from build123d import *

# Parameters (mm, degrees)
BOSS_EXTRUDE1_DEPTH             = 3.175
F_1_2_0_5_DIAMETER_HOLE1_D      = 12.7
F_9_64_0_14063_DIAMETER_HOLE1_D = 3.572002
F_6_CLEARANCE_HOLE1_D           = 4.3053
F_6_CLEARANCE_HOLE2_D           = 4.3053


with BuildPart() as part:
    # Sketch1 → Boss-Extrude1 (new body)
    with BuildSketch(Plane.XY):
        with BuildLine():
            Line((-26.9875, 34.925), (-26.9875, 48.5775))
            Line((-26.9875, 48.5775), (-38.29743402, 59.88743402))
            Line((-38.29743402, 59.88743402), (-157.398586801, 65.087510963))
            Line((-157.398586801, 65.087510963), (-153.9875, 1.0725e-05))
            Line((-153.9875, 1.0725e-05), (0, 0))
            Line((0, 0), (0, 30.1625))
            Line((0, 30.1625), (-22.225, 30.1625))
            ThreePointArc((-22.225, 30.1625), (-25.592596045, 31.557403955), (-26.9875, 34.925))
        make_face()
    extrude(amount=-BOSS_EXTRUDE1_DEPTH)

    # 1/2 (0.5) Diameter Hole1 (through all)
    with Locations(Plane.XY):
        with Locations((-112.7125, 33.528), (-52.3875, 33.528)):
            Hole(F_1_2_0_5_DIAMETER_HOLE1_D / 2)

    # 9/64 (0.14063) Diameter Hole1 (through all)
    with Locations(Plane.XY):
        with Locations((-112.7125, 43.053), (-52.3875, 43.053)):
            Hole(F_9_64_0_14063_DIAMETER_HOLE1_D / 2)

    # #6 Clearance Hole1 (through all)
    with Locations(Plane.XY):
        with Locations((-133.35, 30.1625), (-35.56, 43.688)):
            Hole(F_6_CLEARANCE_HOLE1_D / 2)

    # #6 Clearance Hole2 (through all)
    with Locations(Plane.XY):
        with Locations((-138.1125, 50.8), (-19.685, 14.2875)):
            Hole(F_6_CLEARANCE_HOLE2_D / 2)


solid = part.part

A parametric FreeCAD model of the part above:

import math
import FreeCAD as App
import Part
import Sketcher
from FreeCAD import Vector
Q = App.Units.Quantity

doc = App.newDocument("Part")
body = doc.addObject("PartDesign::Body", "Body")

# Sketch on XY plane
sketch1 = body.newObject("Sketcher::SketchObject", "Sketch")
sketch1.AttachmentSupport = (doc.getObject("XY_Plane"), [""])
sketch1.MapMode = "FlatFace"
sketch1.addGeometry(Part.LineSegment(Vector(-26.9875, 34.925, 0), Vector(-26.9875, 48.5775, 0)), False)
sketch1.addGeometry(Part.LineSegment(Vector(-26.9875, 48.5775, 0), Vector(-38.297434, 59.887434, 0)), False)
sketch1.addGeometry(Part.LineSegment(Vector(-38.297434, 59.887434, 0), Vector(-157.398587, 65.087511, 0)), False)
sketch1.addGeometry(Part.LineSegment(Vector(-157.398587, 65.087511, 0), Vector(-153.9875, 0.000011, 0)), False)
sketch1.addGeometry(Part.LineSegment(Vector(-153.9875, 0.000011, 0), Vector(0, 0, 0)), False)
sketch1.addGeometry(Part.LineSegment(Vector(0, 0, 0), Vector(0, 30.1625, 0)), False)
sketch1.addGeometry(Part.LineSegment(Vector(0, 30.1625, 0), Vector(-22.225, 30.1625, 0)), False)
sketch1.addGeometry(Part.ArcOfCircle(Part.Circle(Vector(-22.225, 34.925, 0), Vector(0, 0, 1), 4.7625), math.radians(-180), math.radians(-90)), False)
sketch1.addConstraint(Sketcher.Constraint("Coincident", 0, 2, 1, 1))
sketch1.addConstraint(Sketcher.Constraint("Coincident", 1, 2, 2, 1))
sketch1.addConstraint(Sketcher.Constraint("Coincident", 2, 2, 3, 1))
sketch1.addConstraint(Sketcher.Constraint("Coincident", 3, 2, 4, 1))
sketch1.addConstraint(Sketcher.Constraint("Coincident", 4, 2, 5, 1))
sketch1.addConstraint(Sketcher.Constraint("Coincident", 5, 2, 6, 1))
sketch1.addConstraint(Sketcher.Constraint("Tangent", 6, 2, 7, 2))
sketch1.addConstraint(Sketcher.Constraint("Tangent", 7, 1, 0, 1))
sketch1.addConstraint(Sketcher.Constraint("Vertical", 0))
sketch1.addConstraint(Sketcher.Constraint("Vertical", 5))
sketch1.addConstraint(Sketcher.Constraint("Horizontal", 6))
sketch1.addConstraint(Sketcher.Constraint("Coincident", 4, 2, -1, 1))
sketch1.addConstraint(Sketcher.Constraint("Angle", 1, Q("135 deg")))
sketch1.addConstraint(Sketcher.Constraint("Angle", 3, Q("-87.000004 deg")))
sketch1.addConstraint(Sketcher.Constraint("Angle", 4, Q("-0.000004 deg")))
sketch1.addConstraint(Sketcher.Constraint("Radius", 7, Q("0.1875 in")))
sketch1.addConstraint(Sketcher.Constraint("DistanceX", 3, 2, 0, 2, Q("5 in")))
sketch1.addConstraint(Sketcher.Constraint("Angle", 2, Q("177.499996 deg")))
sketch1.addConstraint(Sketcher.Constraint("DistanceX", 6, 2, 6, 1, Q("0.875 in")))
sketch1.addConstraint(Sketcher.Constraint("DistanceY", 5, 1, 5, 2, Q("1.1875 in")))
sketch1.addConstraint(Sketcher.Constraint("DistanceY", 0, 1, 0, 2, Q("0.5375 in")))
sketch1.addConstraint(Sketcher.Constraint("DistanceY", 3, 2, 2, 2, Q("2.5625 in")))
pad1 = body.newObject("PartDesign::Pad", "Pad")
pad1.Profile = sketch1
pad1.Length = Q("0.125 in")
pad1.Reversed = True

# Sketch on XY plane
sketch2 = body.newObject("Sketcher::SketchObject", "Sketch001")
sketch2.AttachmentSupport = (doc.getObject("XY_Plane"), [""])
sketch2.MapMode = "FlatFace"
sketch2.addGeometry(Part.Circle(Vector(-112.7125, 33.528, 0), Vector(0, 0, 1), 6.35), False)
sketch2.addGeometry(Part.Circle(Vector(-52.3875, 33.528, 0), Vector(0, 0, 1), 6.35), False)
sketch2.addConstraint(Sketcher.Constraint("Equal", 0, 1))
sketch2.addConstraint(Sketcher.Constraint("Horizontal", 0, 3, 1, 3))
sketch2.addConstraint(Sketcher.Constraint("Diameter", 0, Q("0.5 in")))
sketch2.addConstraint(Sketcher.Constraint("DistanceY", -1, 1, 0, 3, Q("1.32 in")))
sketch2.addConstraint(Sketcher.Constraint("DistanceX", 0, 3, -1, 1, Q("4.4375 in")))
sketch2.addConstraint(Sketcher.Constraint("DistanceX", 1, 3, -1, 1, Q("2.0625 in")))
doc.recompute()
hole = body.newObject("PartDesign::Hole", "Hole")
hole.Profile = sketch2
hole.ThreadType = "None"
hole.Diameter = Q("0.5 in")
hole.DepthType = "ThroughAll"

# Sketch on XY plane
sketch3 = body.newObject("Sketcher::SketchObject", "Sketch002")
sketch3.AttachmentSupport = (doc.getObject("XY_Plane"), [""])
sketch3.MapMode = "FlatFace"
sketch3.addGeometry(Part.Circle(Vector(-112.7125, 43.053, 0), Vector(0, 0, 1), 1.786001), False)
sketch3.addGeometry(Part.Circle(Vector(-52.3875, 43.053, 0), Vector(0, 0, 1), 1.786001), False)
sketch3.addConstraint(Sketcher.Constraint("Equal", 0, 1))
sketch3.addConstraint(Sketcher.Constraint("Horizontal", 0, 3, 1, 3))
sketch3.addConstraint(Sketcher.Constraint("Diameter", 0, Q("3.572002 mm")))
sketch3.addConstraint(Sketcher.Constraint("DistanceX", 0, 3, -1, 1, Q("4.4375 in")))
sketch3.addConstraint(Sketcher.Constraint("DistanceY", -1, 1, 0, 3, Q("1.695 in")))
sketch3.addConstraint(Sketcher.Constraint("DistanceX", 1, 3, -1, 1, Q("2.0625 in")))
doc.recompute()
hole2 = body.newObject("PartDesign::Hole", "Hole001")
hole2.Profile = sketch3
hole2.ThreadType = "None"
hole2.Diameter = 3.572002
hole2.DepthType = "ThroughAll"

# Sketch on XY plane
sketch4 = body.newObject("Sketcher::SketchObject", "Sketch003")
sketch4.AttachmentSupport = (doc.getObject("XY_Plane"), [""])
sketch4.MapMode = "FlatFace"
sketch4.addGeometry(Part.Circle(Vector(-133.35, 30.1625, 0), Vector(0, 0, 1), 2.15265), False)
sketch4.addGeometry(Part.Circle(Vector(-35.56, 43.688, 0), Vector(0, 0, 1), 2.15265), False)
sketch4.addConstraint(Sketcher.Constraint("Equal", 0, 1))
sketch4.addConstraint(Sketcher.Constraint("Diameter", 0, Q("0.1695 in")))
sketch4.addConstraint(Sketcher.Constraint("DistanceX", 1, 3, -1, 1, Q("1.4 in")))
sketch4.addConstraint(Sketcher.Constraint("DistanceX", 0, 3, -1, 1, Q("5.25 in")))
sketch4.addConstraint(Sketcher.Constraint("DistanceY", -1, 1, 1, 3, Q("1.72 in")))
sketch4.addConstraint(Sketcher.Constraint("DistanceY", -1, 1, 0, 3, Q("1.1875 in")))
doc.recompute()
hole3 = body.newObject("PartDesign::Hole", "Hole002")
hole3.Profile = sketch4
hole3.ThreadType = "None"
hole3.Diameter = Q("0.1695 in")
hole3.DepthType = "ThroughAll"

# Sketch on XY plane
sketch5 = body.newObject("Sketcher::SketchObject", "Sketch004")
sketch5.AttachmentSupport = (doc.getObject("XY_Plane"), [""])
sketch5.MapMode = "FlatFace"
sketch5.addGeometry(Part.Circle(Vector(-138.1125, 50.8, 0), Vector(0, 0, 1), 2.15265), False)
sketch5.addGeometry(Part.Circle(Vector(-19.685, 14.2875, 0), Vector(0, 0, 1), 2.15265), False)
sketch5.addConstraint(Sketcher.Constraint("Equal", 0, 1))
sketch5.addConstraint(Sketcher.Constraint("DistanceY", -1, 1, 0, 3, Q("2 in")))
sketch5.addConstraint(Sketcher.Constraint("Diameter", 0, Q("0.1695 in")))
sketch5.addConstraint(Sketcher.Constraint("DistanceX", 0, 3, -1, 1, Q("5.4375 in")))
sketch5.addConstraint(Sketcher.Constraint("DistanceX", 1, 3, -1, 1, Q("0.775 in")))
sketch5.addConstraint(Sketcher.Constraint("DistanceY", -1, 1, 1, 3, Q("0.5625 in")))
doc.recompute()
hole4 = body.newObject("PartDesign::Hole", "Hole003")
hole4.Profile = sketch5
hole4.ThreadType = "None"
hole4.Diameter = Q("0.1695 in")
hole4.DepthType = "ThroughAll"

doc.recompute()
